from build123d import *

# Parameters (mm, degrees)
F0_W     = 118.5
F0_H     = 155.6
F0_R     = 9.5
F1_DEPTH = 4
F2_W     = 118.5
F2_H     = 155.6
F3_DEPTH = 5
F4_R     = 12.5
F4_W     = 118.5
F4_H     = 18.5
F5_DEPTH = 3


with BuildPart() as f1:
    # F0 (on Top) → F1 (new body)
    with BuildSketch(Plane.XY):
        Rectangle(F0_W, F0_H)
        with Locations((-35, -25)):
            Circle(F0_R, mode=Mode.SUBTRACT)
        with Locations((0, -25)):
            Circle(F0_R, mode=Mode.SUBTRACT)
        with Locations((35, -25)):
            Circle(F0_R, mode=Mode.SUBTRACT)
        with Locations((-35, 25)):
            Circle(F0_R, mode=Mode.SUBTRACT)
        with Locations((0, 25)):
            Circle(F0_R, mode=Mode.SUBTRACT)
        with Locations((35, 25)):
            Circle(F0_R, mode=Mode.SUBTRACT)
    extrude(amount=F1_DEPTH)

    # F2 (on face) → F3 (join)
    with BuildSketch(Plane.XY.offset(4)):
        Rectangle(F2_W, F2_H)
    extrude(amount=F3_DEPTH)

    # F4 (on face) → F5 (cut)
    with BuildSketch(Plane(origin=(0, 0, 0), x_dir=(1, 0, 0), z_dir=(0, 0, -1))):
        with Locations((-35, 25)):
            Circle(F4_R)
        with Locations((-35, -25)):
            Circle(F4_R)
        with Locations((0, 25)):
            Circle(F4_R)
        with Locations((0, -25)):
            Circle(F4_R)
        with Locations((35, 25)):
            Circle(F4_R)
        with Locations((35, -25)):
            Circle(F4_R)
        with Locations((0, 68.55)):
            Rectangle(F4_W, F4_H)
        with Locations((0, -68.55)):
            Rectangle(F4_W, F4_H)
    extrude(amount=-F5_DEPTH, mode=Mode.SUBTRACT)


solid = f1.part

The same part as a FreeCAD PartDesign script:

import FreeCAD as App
import Part
import Sketcher
Q = App.Units.Quantity

doc = App.newDocument("Part")
body = doc.addObject("PartDesign::Body", "Body")

sketch1 = body.newObject("Sketcher::SketchObject", "Sketch")
sketch1.AttachmentSupport = (doc.getObject("XY_Plane"), [""])
sketch1.MapMode = "FlatFace"
sketch1.addGeometry([
    Part.LineSegment(App.Vector(-59, 78, 0), App.Vector(-59, -78, 0)),
    Part.LineSegment(App.Vector(-59, -78, 0), App.Vector(59, -78, 0)),
    Part.LineSegment(App.Vector(59, -78, 0), App.Vector(59, 78, 0)),
    Part.LineSegment(App.Vector(59, 78, 0), App.Vector(-59, 78, 0)),
    Part.Circle(App.Vector(-35, -25, 0), App.Vector(0, 0, 1), 10),
    Part.Circle(App.Vector(0, -25, 0), App.Vector(0, 0, 1), 10),
    Part.Circle(App.Vector(35, -25, 0), App.Vector(0, 0, 1), 10),
    Part.Circle(App.Vector(-35, 25, 0), App.Vector(0, 0, 1), 10),
    Part.Circle(App.Vector(0, 25, 0), App.Vector(0, 0, 1), 10),
    Part.Circle(App.Vector(35, 25, 0), App.Vector(0, 0, 1), 10),
], False)
sketch1.addConstraint([
    Sketcher.Constraint("Coincident", 0, 2, 1, 1),
    Sketcher.Constraint("Coincident", 1, 2, 2, 1),
    Sketcher.Constraint("Coincident", 2, 2, 3, 1),
    Sketcher.Constraint("Coincident", 3, 2, 0, 1),
    Sketcher.Constraint("Vertical", 0),
    Sketcher.Constraint("Horizontal", 1),
    Sketcher.Constraint("Vertical", 2),
    Sketcher.Constraint("Horizontal", 3),
    Sketcher.Constraint("Equal", 4, 5),
    Sketcher.Constraint("Equal", 5, 6),
    Sketcher.Constraint("Equal", 6, 7),
    Sketcher.Constraint("Equal", 7, 8),
    Sketcher.Constraint("Equal", 8, 9),
    Sketcher.Constraint("Symmetric", 6, 3, 7, 3, -1, 1),
    Sketcher.Constraint("Symmetric", 5, 3, 8, 3, -1, 1),
    Sketcher.Constraint("Symmetric", 4, 3, 9, 3, -1, 1),
    Sketcher.Constraint("Symmetric", 0, 2, 2, 2, -1, 1),
    Sketcher.Constraint("Symmetric", 4, 3, 6, 3, -2),
    Sketcher.Constraint("PointOnObject", 5, 3, -2),
    Sketcher.Constraint("Horizontal", 4, 3, 5, 3),
    Sketcher.Constraint("Diameter", 4, Q("19 mm")),
    Sketcher.Constraint("DistanceX", 1, 1, 1, 2, Q("118.5 mm")),
    Sketcher.Constraint("DistanceY", 0, 2, 0, 1, Q("155.6 mm")),
    Sketcher.Constraint("DistanceX", 4, 3, -1, 1, Q("35 mm")),
    Sketcher.Constraint("DistanceY", 4, 3, -1, 1, Q("25 mm")),
])
pad1 = body.newObject("PartDesign::Pad", "Pad")
pad1.Profile = sketch1
pad1.Length = 4

sketch2 = body.newObject("Sketcher::SketchObject", "Sketch001")
sketch2.AttachmentSupport = (doc.getObject("XY_Plane"), [""])
sketch2.MapMode = "FlatFace"
sketch2.AttachmentOffset = App.Placement(App.Vector(0, 0, 4), App.Rotation())
sketch2.addGeometry([
    Part.LineSegment(App.Vector(-59, 78, 0), App.Vector(-59, -78, 0)),
    Part.LineSegment(App.Vector(-59, -78, 0), App.Vector(59, -78, 0)),
    Part.LineSegment(App.Vector(59, -78, 0), App.Vector(59, 78, 0)),
    Part.LineSegment(App.Vector(59, 78, 0), App.Vector(-59, 78, 0)),
], False)
sketch2.addConstraint([
    Sketcher.Constraint("Coincident", 0, 2, 1, 1),
    Sketcher.Constraint("Coincident", 1, 2, 2, 1),
    Sketcher.Constraint("Coincident", 2, 2, 3, 1),
    Sketcher.Constraint("Coincident", 3, 2, 0, 1),
    Sketcher.Constraint("Vertical", 0),
    Sketcher.Constraint("Horizontal", 1),
    Sketcher.Constraint("Vertical", 2),
    Sketcher.Constraint("Horizontal", 3),
    Sketcher.Constraint("Symmetric", 0, 2, 2, 2, -1, 1),
    Sketcher.Constraint("DistanceX", 1, 1, 1, 2, Q("118.5 mm")),
    Sketcher.Constraint("DistanceY", 0, 2, 0, 1, Q("155.6 mm")),
])
pad2 = body.newObject("PartDesign::Pad", "Pad001")
pad2.Profile = sketch2
pad2.Length = 5

sketch3 = body.newObject("Sketcher::SketchObject", "Sketch002")
sketch3.AttachmentSupport = (doc.getObject("XY_Plane"), [""])
sketch3.MapMode = "FlatFace"
sketch3.addGeometry([
    Part.Circle(App.Vector(-35, -25, 0), App.Vector(0, 0, 1), 12),
    Part.Circle(App.Vector(-35, 25, 0), App.Vector(0, 0, 1), 12),
    Part.Circle(App.Vector(0, -25, 0), App.Vector(0, 0, 1), 12),
    Part.Circle(App.Vector(0, 25, 0), App.Vector(0, 0, 1), 12),
    Part.Circle(App.Vector(35, -25, 0), App.Vector(0, 0, 1), 12),
    Part.Circle(App.Vector(35, 25, 0), App.Vector(0, 0, 1), 12),
    Part.LineSegment(App.Vector(-59, -78, 0), App.Vector(-59, -59, 0)),
    Part.LineSegment(App.Vector(-59, -59, 0), App.Vector(59, -59, 0)),
    Part.LineSegment(App.Vector(59, -59, 0), App.Vector(59, -78, 0)),
    Part.LineSegment(App.Vector(59, -78, 0), App.Vector(-59, -78, 0)),
    Part.LineSegment(App.Vector(-59, 59, 0), App.Vector(-59, 78, 0)),
    Part.LineSegment(App.Vector(-59, 78, 0), App.Vector(59, 78, 0)),
    Part.LineSegment(App.Vector(59, 78, 0), App.Vector(59, 59, 0)),
    Part.LineSegment(App.Vector(59, 59, 0), App.Vector(-59, 59, 0)),
], False)
sketch3.addConstraint([
    Sketcher.Constraint("Coincident", 6, 2, 7, 1),
    Sketcher.Constraint("Coincident", 7, 2, 8, 1),
    Sketcher.Constraint("Coincident", 8, 2, 9, 1),
    Sketcher.Constraint("Coincident", 9, 2, 6, 1),
    Sketcher.Constraint("Coincident", 10, 2, 11, 1),
    Sketcher.Constraint("Coincident", 11, 2, 12, 1),
    Sketcher.Constraint("Coincident", 12, 2, 13, 1),
    Sketcher.Constraint("Coincident", 13, 2, 10, 1),
    Sketcher.Constraint("Vertical", 6),
    Sketcher.Constraint("Horizontal", 7),
    Sketcher.Constraint("Vertical", 8),
    Sketcher.Constraint("Horizontal", 9),
    Sketcher.Constraint("Vertical", 10),
    Sketcher.Constraint("Horizontal", 11),
    Sketcher.Constraint("Vertical", 12),
    Sketcher.Constraint("Horizontal", 13),
    Sketcher.Constraint("Equal", 0, 1),
    Sketcher.Constraint("Equal", 1, 2),
    Sketcher.Constraint("Equal", 2, 3),
    Sketcher.Constraint("Equal", 3, 4),
    Sketcher.Constraint("Equal", 4, 5),
    Sketcher.Constraint("Symmetric", 2, 3, 3, 3, -1, 1),
    Sketcher.Constraint("Symmetric", 1, 3, 4, 3, -1, 1),
    Sketcher.Constraint("Symmetric", 0, 3, 5, 3, -1, 1),
    Sketcher.Constraint("Symmetric", 8, 2, 10, 2, -1, 1),
    Sketcher.Constraint("Symmetric", 6, 2, 12, 2, -1, 1),
    Sketcher.Constraint("Symmetric", 0, 3, 4, 3, -2),
    Sketcher.Constraint("PointOnObject", 2, 3, -2),
    Sketcher.Constraint("Horizontal", 0, 3, 2, 3),
    Sketcher.Constraint("Vertical", 9, 2, 10, 2),
    Sketcher.Constraint("Diameter", 0, Q("25 mm")),
    Sketcher.Constraint("DistanceX", 7, 1, 7, 2, Q("118.5 mm")),
    Sketcher.Constraint("DistanceY", 6, 1, 6, 2, Q("18.5 mm")),
    Sketcher.Constraint("DistanceX", 0, 3, -1, 1, Q("35 mm")),
    Sketcher.Constraint("DistanceY", 0, 3, -1, 1, Q("25 mm")),
    Sketcher.Constraint("DistanceY", 6, 2, -1, 1, Q("59.3 mm")),
])
pocket1 = body.newObject("PartDesign::Pocket", "Pocket")
pocket1.Profile = sketch3
pocket1.Length = 3
pocket1.Reversed = True

doc.recompute()
